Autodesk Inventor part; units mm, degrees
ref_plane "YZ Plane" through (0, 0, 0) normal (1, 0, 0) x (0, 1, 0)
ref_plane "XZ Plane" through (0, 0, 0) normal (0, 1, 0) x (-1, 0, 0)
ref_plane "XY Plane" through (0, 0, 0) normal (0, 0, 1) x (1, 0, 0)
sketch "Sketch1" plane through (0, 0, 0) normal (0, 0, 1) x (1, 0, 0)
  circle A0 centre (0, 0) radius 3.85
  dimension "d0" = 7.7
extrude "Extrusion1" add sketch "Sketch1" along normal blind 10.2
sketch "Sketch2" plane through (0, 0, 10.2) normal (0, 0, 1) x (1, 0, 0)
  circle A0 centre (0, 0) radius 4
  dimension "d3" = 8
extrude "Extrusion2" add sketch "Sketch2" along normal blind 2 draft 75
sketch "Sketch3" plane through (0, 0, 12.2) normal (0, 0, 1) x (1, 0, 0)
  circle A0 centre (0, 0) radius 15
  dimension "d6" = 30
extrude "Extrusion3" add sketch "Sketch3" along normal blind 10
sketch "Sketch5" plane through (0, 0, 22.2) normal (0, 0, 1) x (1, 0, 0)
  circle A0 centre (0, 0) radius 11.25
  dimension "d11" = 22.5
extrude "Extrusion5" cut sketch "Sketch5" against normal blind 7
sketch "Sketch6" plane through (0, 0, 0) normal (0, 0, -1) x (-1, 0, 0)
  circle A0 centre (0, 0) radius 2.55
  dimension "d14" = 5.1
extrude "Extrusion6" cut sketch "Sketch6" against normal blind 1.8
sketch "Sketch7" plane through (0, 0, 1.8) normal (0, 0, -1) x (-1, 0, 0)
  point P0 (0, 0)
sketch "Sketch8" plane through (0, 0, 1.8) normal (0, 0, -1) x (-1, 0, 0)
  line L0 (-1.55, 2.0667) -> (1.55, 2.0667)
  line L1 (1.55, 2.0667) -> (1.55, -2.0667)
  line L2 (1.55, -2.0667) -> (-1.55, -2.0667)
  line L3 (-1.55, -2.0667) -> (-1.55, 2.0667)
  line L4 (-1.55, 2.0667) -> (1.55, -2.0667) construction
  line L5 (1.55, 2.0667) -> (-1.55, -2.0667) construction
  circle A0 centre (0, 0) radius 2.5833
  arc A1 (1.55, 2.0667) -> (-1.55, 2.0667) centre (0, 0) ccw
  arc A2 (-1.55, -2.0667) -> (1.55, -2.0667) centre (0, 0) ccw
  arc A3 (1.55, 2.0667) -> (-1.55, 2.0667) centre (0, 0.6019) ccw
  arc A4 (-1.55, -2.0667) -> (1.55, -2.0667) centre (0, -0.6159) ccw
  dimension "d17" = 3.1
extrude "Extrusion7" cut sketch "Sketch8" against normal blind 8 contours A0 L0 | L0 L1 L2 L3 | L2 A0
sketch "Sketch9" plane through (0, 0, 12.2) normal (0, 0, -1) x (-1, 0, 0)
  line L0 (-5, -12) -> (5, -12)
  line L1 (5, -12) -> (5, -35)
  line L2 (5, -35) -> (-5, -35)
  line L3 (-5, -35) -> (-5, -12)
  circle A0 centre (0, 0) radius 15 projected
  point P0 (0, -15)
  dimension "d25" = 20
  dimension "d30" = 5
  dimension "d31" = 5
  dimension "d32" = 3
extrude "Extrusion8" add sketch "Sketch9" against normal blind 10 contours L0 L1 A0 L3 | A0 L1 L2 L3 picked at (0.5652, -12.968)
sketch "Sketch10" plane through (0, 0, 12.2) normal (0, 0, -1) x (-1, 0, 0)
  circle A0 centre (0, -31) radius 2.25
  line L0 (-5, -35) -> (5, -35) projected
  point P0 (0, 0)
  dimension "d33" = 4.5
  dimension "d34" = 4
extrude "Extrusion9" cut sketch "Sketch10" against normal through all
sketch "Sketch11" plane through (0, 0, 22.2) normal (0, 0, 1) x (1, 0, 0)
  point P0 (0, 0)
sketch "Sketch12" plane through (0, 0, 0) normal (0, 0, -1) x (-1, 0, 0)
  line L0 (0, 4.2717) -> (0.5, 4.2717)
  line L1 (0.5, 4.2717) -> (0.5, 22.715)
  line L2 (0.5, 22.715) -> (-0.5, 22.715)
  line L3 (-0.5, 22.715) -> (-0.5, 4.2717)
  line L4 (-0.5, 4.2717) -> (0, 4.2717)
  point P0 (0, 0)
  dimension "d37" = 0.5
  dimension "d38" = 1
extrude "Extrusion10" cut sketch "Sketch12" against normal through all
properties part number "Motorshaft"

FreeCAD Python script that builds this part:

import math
import FreeCAD as App
import Part
import Sketcher

V = App.Vector

doc = App.newDocument("Part")
body = doc.addObject("PartDesign::Body", "Body")

# Sketch on XY plane
sketch1 = body.newObject("Sketcher::SketchObject", "Sketch")
sketch1.AttachmentSupport = (doc.getObject("XY_Plane"), [""])
sketch1.MapMode = "FlatFace"
sketch1.addGeometry(Part.Circle(V(0, 0, 0), V(0, 0, 1), 3.9), False)
sketch1.addConstraint([
    Sketcher.Constraint("Coincident", 0, 3, -1, 1),
    Sketcher.Constraint("Diameter", 0, 7.7),
])
pad1 = body.newObject("PartDesign::Pad", "Pad")
pad1.Profile = sketch1
pad1.Length = 10.2

# Sketch on XY plane
sketch2 = body.newObject("Sketcher::SketchObject", "Sketch001")
sketch2.AttachmentSupport = (doc.getObject("XY_Plane"), [""])
sketch2.MapMode = "FlatFace"
sketch2.AttachmentOffset = App.Placement(V(0, 0, 10.2), App.Rotation())
sketch2.addGeometry(Part.Circle(V(0, 0, 0), V(0, 0, 1), 4), False)
sketch2.addConstraint([
    Sketcher.Constraint("Coincident", 0, 3, -1, 1),
    Sketcher.Constraint("Diameter", 0, 8.0),
])
pad2 = body.newObject("PartDesign::Pad", "Pad001")
pad2.Profile = sketch2
pad2.Length = 2
pad2.TaperAngle = 75

# Sketch on XY plane
sketch3 = body.newObject("Sketcher::SketchObject", "Sketch002")
sketch3.AttachmentSupport = (doc.getObject("XY_Plane"), [""])
sketch3.MapMode = "FlatFace"
sketch3.AttachmentOffset = App.Placement(V(0, 0, 12.2), App.Rotation())
sketch3.addGeometry(Part.Circle(V(0, 0, 0), V(0, 0, 1), 15), False)
sketch3.addConstraint([
    Sketcher.Constraint("Coincident", 0, 3, -1, 1),
    Sketcher.Constraint("Diameter", 0, 30.0),
])
pad3 = body.newObject("PartDesign::Pad", "Pad002")
pad3.Profile = sketch3
pad3.Length = 10

# Sketch on XY plane
sketch4 = body.newObject("Sketcher::SketchObject", "Sketch003")
sketch4.AttachmentSupport = (doc.getObject("XY_Plane"), [""])
sketch4.MapMode = "FlatFace"
sketch4.AttachmentOffset = App.Placement(V(0, 0, 22.2), App.Rotation())
sketch4.addGeometry(Part.Circle(V(0, 0, 0), V(0, 0, 1), 11), False)
sketch4.addConstraint([
    Sketcher.Constraint("Coincident", 0, 3, -1, 1),
    Sketcher.Constraint("Diameter", 0, 22.5),
])
pocket1 = body.newObject("PartDesign::Pocket", "Pocket")
pocket1.Profile = sketch4
pocket1.Length = 7

# Sketch on XY plane
sketch5 = body.newObject("Sketcher::SketchObject", "Sketch004")
sketch5.AttachmentSupport = (doc.getObject("XY_Plane"), [""])
sketch5.MapMode = "FlatFace"
sketch5.addGeometry(Part.Circle(V(0, 0, 0), V(0, 0, 1), 2.5), False)
sketch5.addConstraint([
    Sketcher.Constraint("Coincident", 0, 3, -1, 1),
    Sketcher.Constraint("Diameter", 0, 5.1),
])
pocket2 = body.newObject("PartDesign::Pocket", "Pocket001")
pocket2.Profile = sketch5
pocket2.Length = 1.8
pocket2.Reversed = True

# Sketch on XY plane
sketch6 = body.newObject("Sketcher::SketchObject", "Sketch005")
sketch6.AttachmentSupport = (doc.getObject("XY_Plane"), [""])
sketch6.MapMode = "FlatFace"
sketch6.AttachmentOffset = App.Placement(V(0, 0, 1.8), App.Rotation())
sketch6.addGeometry([
    Part.ArcOfCircle(Part.Circle(V(0, 0, 0), V(0, 0, 1), 2.6), math.radians(53), math.radians(127)),
    Part.LineSegment(V(1.6, 2.1, 0), V(1.6, -2.1, 0)),
    Part.ArcOfCircle(Part.Circle(V(0, 0, 0), V(0, 0, 1), 2.6), math.radians(-127), math.radians(-53)),
    Part.LineSegment(V(-1.6, -2.1, 0), V(-1.6, 2.1, 0)),
], False)
sketch6.addConstraint([
    Sketcher.Constraint("Coincident", 0, 1, 1, 1),
    Sketcher.Constraint("Coincident", 1, 2, 2, 2),
    Sketcher.Constraint("Coincident", 2, 1, 3, 1),
    Sketcher.Constraint("Coincident", 3, 2, 0, 2),
    Sketcher.Constraint("Vertical", 1),
    Sketcher.Constraint("Vertical", 3),
    Sketcher.Constraint("Coincident", 0, 3, -1, 1),
    Sketcher.Constraint("Coincident", 2, 3, -1, 1),
    Sketcher.Constraint("Equal", 0, 2),
    Sketcher.Constraint("Horizontal", 1, 2, 2, 1),
    Sketcher.Constraint("DistanceX", 2, 1, 1, 2, 3.1),
    Sketcher.Constraint("Radius", 0, 2.5833),
])
pocket3 = body.newObject("PartDesign::Pocket", "Pocket002")
pocket3.Profile = sketch6
pocket3.Length = 8
pocket3.Reversed = True

# Sketch on XY plane
sketch7 = body.newObject("Sketcher::SketchObject", "Sketch006")
sketch7.AttachmentSupport = (doc.getObject("XY_Plane"), [""])
sketch7.MapMode = "FlatFace"
sketch7.AttachmentOffset = App.Placement(V(0, 0, 12.2), App.Rotation())
sketch7.addGeometry([
    Part.LineSegment(V(-5, -12, 0), V(5, -12, 0)),
    Part.LineSegment(V(5, -12, 0), V(5, -35, 0)),
    Part.LineSegment(V(5, -35, 0), V(-5, -35, 0)),
    Part.LineSegment(V(-5, -35, 0), V(-5, -12, 0)),
], False)
sketch7.addConstraint([
    Sketcher.Constraint("Coincident", 0, 2, 1, 1),
    Sketcher.Constraint("Coincident", 1, 2, 2, 1),
    Sketcher.Constraint("Coincident", 2, 2, 3, 1),
    Sketcher.Constraint("Coincident", 3, 2, 0, 1),
    Sketcher.Constraint("Horizontal", 0),
    Sketcher.Constraint("Vertical", 1),
    Sketcher.Constraint("Horizontal", 2),
    Sketcher.Constraint("Vertical", 3),
    Sketcher.Constraint("DistanceX", -1, 1, 0, 2, 5.0),
    Sketcher.Constraint("DistanceX", 2, 2, -1, 1, 5.0),
    Sketcher.Constraint("DistanceY", 1, 2, 1, 1, 23.0),
    Sketcher.Constraint("DistanceY", 0, 2, -1, 1, 12.0),
])
pad4 = body.newObject("PartDesign::Pad", "Pad003")
pad4.Profile = sketch7
pad4.Length = 10

# Sketch on XY plane
sketch8 = body.newObject("Sketcher::SketchObject", "Sketch007")
sketch8.AttachmentSupport = (doc.getObject("XY_Plane"), [""])
sketch8.MapMode = "FlatFace"
sketch8.AttachmentOffset = App.Placement(V(0, 0, 12.2), App.Rotation())
sketch8.addGeometry(Part.Circle(V(0, -31, 0), V(0, 0, 1), 2.2), False)
sketch8.addConstraint([
    Sketcher.Constraint("PointOnObject", 0, 3, -2),
    Sketcher.Constraint("Diameter", 0, 4.5),
    Sketcher.Constraint("DistanceY", 0, 3, -1, 1, 31.0),
])
pocket4 = body.newObject("PartDesign::Pocket", "Pocket003")
pocket4.Profile = sketch8
pocket4.Type = "ThroughAll"
pocket4.Reversed = True

# Sketch on XY plane
sketch9 = body.newObject("Sketcher::SketchObject", "Sketch008")
sketch9.AttachmentSupport = (doc.getObject("XY_Plane"), [""])
sketch9.MapMode = "FlatFace"
sketch9.addGeometry([
    Part.LineSegment(V(0.5, 4.3, 0), V(-0.5, 4.3, 0)),
    Part.LineSegment(V(-0.5, 4.3, 0), V(-0.5, 22.7, 0)),
    Part.LineSegment(V(-0.5, 22.7, 0), V(0.5, 22.7, 0)),
    Part.LineSegment(V(0.5, 22.7, 0), V(0.5, 4.3, 0)),
], False)
sketch9.addConstraint([
    Sketcher.Constraint("Coincident", 0, 2, 1, 1),
    Sketcher.Constraint("Coincident", 1, 2, 2, 1),
    Sketcher.Constraint("Coincident", 2, 2, 3, 1),
    Sketcher.Constraint("Coincident", 3, 2, 0, 1),
    Sketcher.Constraint("Horizontal", 0),
    Sketcher.Constraint("Vertical", 1),
    Sketcher.Constraint("Horizontal", 2),
    Sketcher.Constraint("Vertical", 3),
    Sketcher.Constraint("DistanceX", 0, 2, 0, 1, 1.0),
    Sketcher.Constraint("DistanceX", 0, 2, -1, 1, 0.5),
    Sketcher.Constraint("DistanceY", 1, 1, 1, 2, 18.4433),
    Sketcher.Constraint("DistanceY", -1, 1, 1, 2, 22.715),
])
pocket5 = body.newObject("PartDesign::Pocket", "Pocket004")
pocket5.Profile = sketch9
pocket5.Type = "ThroughAll"
pocket5.Reversed = True

doc.recompute()
